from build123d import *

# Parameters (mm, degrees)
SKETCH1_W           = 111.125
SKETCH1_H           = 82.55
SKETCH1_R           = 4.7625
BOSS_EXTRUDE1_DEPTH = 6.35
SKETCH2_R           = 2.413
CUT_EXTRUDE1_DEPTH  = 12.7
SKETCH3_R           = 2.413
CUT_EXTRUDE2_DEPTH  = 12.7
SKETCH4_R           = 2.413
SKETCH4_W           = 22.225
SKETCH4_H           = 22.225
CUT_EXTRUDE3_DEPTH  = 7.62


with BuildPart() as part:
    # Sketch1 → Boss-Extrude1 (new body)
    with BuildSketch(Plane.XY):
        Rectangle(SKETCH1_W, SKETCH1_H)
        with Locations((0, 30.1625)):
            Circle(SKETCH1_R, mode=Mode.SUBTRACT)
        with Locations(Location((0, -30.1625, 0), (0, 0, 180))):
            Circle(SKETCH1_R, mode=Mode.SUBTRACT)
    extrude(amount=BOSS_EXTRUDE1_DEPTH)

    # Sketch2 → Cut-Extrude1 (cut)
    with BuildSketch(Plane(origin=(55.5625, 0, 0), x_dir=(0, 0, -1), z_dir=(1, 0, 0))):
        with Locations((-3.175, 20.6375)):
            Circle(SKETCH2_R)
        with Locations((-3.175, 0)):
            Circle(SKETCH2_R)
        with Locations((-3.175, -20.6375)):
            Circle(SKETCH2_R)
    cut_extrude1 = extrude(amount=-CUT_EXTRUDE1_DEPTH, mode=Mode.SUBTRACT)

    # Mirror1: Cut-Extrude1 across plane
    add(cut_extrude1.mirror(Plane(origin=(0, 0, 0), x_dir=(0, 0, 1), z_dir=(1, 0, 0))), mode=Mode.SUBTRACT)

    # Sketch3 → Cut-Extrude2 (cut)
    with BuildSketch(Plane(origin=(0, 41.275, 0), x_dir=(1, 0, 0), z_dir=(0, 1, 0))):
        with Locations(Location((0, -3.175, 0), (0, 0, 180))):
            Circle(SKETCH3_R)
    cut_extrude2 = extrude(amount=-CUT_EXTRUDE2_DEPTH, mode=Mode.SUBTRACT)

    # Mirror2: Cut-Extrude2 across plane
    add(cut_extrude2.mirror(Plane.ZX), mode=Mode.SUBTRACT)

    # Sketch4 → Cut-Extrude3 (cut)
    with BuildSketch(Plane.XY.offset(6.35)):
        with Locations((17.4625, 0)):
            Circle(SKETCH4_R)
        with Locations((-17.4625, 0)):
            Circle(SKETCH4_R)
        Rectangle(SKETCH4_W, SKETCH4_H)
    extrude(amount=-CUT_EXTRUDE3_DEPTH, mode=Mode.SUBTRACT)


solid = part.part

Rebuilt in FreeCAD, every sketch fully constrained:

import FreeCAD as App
import Part
import Sketcher
Q = App.Units.Quantity

doc = App.newDocument("Part")
params = doc.addObject("Spreadsheet::Sheet", "Params")
for row, (alias, value) in enumerate([
    ("sketch1_diameter", "0.375 in"),
    ("sketch1_height", "3.25 in"),
    ("sketch1_width", "4.375 in"),
    ("pad1_length", "0.25 in"),
    ("sketch2_diameter", "0.19 in"),
    ("pocket1_length", "0.5 in"),
    ("sketch3_diameter", "0.19 in"),
    ("pocket2_length", "0.5 in"),
    ("sketch4_diameter", "0.19 in"),
    ("sketch4_width", "0.875 in"),
    ("pocket3_length", "0.3 in"),
], start=1):
    params.set(f"A{row}", alias)
    params.set(f"B{row}", "=" + value)
    params.setAlias(f"B{row}", alias)

body = doc.addObject("PartDesign::Body", "Body")

sketch1 = doc.addObject("Sketcher::SketchObject", "Sketch")
body.addObject(sketch1)
sketch1.AttachmentSupport = (doc.XY_Plane, [""])
sketch1.MapMode = "FlatFace"
sketch1.addGeometry([
    Part.LineSegment(App.Vector(-55.5625, 41.275, 0), App.Vector(-55.5625, -41.275, 0)),
    Part.LineSegment(App.Vector(-55.5625, -41.275, 0), App.Vector(55.5625, -41.275, 0)),
    Part.LineSegment(App.Vector(55.5625, -41.275, 0), App.Vector(55.5625, 41.275, 0)),
    Part.LineSegment(App.Vector(55.5625, 41.275, 0), App.Vector(-55.5625, 41.275, 0)),
    Part.Circle(App.Vector(0, -30.1625, 0), App.Vector(0, 0, 1), 4.7625),
    Part.Circle(App.Vector(0, 30.1625, 0), App.Vector(0, 0, 1), 4.7625),
], False)
sketch1.addConstraint([
    Sketcher.Constraint("Coincident", 0, 2, 1, 1),
    Sketcher.Constraint("Coincident", 1, 2, 2, 1),
    Sketcher.Constraint("Coincident", 2, 2, 3, 1),
    Sketcher.Constraint("Coincident", 3, 2, 0, 1),
    Sketcher.Constraint("Vertical", 0),
    Sketcher.Constraint("Horizontal", 1),
    Sketcher.Constraint("Vertical", 2),
    Sketcher.Constraint("Horizontal", 3),
    Sketcher.Constraint("Equal", 4, 5),
    Sketcher.Constraint("Symmetric", 4, 3, 5, 3, -1, 1),
    Sketcher.Constraint("Symmetric", 0, 2, 2, 2, -1, 1),
    Sketcher.Constraint("PointOnObject", 4, 3, -2),
    Sketcher.Constraint("Diameter", 4, Q("0.375 in")),
    Sketcher.Constraint("DistanceY", 0, 2, 0, 1, Q("3.25 in")),
    Sketcher.Constraint("DistanceX", 1, 1, 1, 2, Q("4.375 in")),
    Sketcher.Constraint("DistanceY", 4, 3, -1, 1, Q("1.1875 in")),
])
sketch1.setExpression("Constraints[12]", "Params.sketch1_diameter")
sketch1.setExpression("Constraints[13]", "Params.sketch1_height")
sketch1.setExpression("Constraints[14]", "Params.sketch1_width")
pad1 = doc.addObject("PartDesign::Pad", "Pad")
body.addObject(pad1)
pad1.Profile = sketch1
pad1.setExpression("Length", "Params.pad1_length")

sketch2 = doc.addObject("Sketcher::SketchObject", "Sketch001")
body.addObject(sketch2)
sketch2.AttachmentSupport = (doc.YZ_Plane, [""])
sketch2.MapMode = "FlatFace"
sketch2.AttachmentOffset = App.Placement(App.Vector(0, 0, 2.1875 * 25.4), App.Rotation())
sketch2.addGeometry([
    Part.Circle(App.Vector(20.6375, 3.175, 0), App.Vector(0, 0, 1), 2.413),
    Part.Circle(App.Vector(0, 3.175, 0), App.Vector(0, 0, 1), 2.413),
    Part.Circle(App.Vector(-20.6375, 3.175, 0), App.Vector(0, 0, 1), 2.413),
], False)
sketch2.addConstraint([
    Sketcher.Constraint("Equal", 0, 1),
    Sketcher.Constraint("Equal", 1, 2),
    Sketcher.Constraint("Symmetric", 0, 3, 2, 3, -2),
    Sketcher.Constraint("PointOnObject", 1, 3, -2),
    Sketcher.Constraint("Horizontal", 0, 3, 1, 3),
    Sketcher.Constraint("Diameter", 0, Q("0.19 in")),
    Sketcher.Constraint("DistanceX", -1, 1, 0, 3, Q("0.8125 in")),
    Sketcher.Constraint("DistanceY", -1, 1, 0, 3, Q("0.125 in")),
])
sketch2.setExpression("Constraints[5]", "Params.sketch2_diameter")
pocket1 = doc.addObject("PartDesign::Pocket", "Pocket")
body.addObject(pocket1)
pocket1.Profile = sketch2
pocket1.setExpression("Length", "Params.pocket1_length")
doc.recompute()

mirrored = doc.addObject("PartDesign::Mirrored", "Mirrored")
body.addObject(mirrored)
mirrored.Originals = [pocket1]
mirrored.MirrorPlane = (doc.YZ_Plane, [""])
body.Tip = mirrored

sketch3 = doc.addObject("Sketcher::SketchObject", "Sketch002")
body.addObject(sketch3)
sketch3.AttachmentSupport = (doc.XZ_Plane, [""])
sketch3.MapMode = "FlatFace"
sketch3.AttachmentOffset = App.Placement(App.Vector(0, 0, -1.625 * 25.4), App.Rotation())
sketch3.addGeometry(Part.Circle(App.Vector(0, 3.175, 0), App.Vector(0, 0, 1), 2.413), False)
sketch3.addConstraint([
    Sketcher.Constraint("PointOnObject", 0, 3, -2),
    Sketcher.Constraint("Diameter", 0, Q("0.19 in")),
    Sketcher.Constraint("DistanceY", -1, 1, 0, 3, Q("0.125 in")),
])
sketch3.setExpression("Constraints[1]", "Params.sketch3_diameter")
pocket2 = doc.addObject("PartDesign::Pocket", "Pocket001")
body.addObject(pocket2)
pocket2.Profile = sketch3
pocket2.setExpression("Length", "Params.pocket2_length")
pocket2.Reversed = True
doc.recompute()

mirrored2 = doc.addObject("PartDesign::Mirrored", "Mirrored001")
body.addObject(mirrored2)
mirrored2.Originals = [pocket2]
mirrored2.MirrorPlane = (doc.XZ_Plane, [""])
body.Tip = mirrored2

sketch4 = doc.addObject("Sketcher::SketchObject", "Sketch003")
body.addObject(sketch4)
sketch4.AttachmentSupport = (doc.XY_Plane, [""])
sketch4.MapMode = "FlatFace"
sketch4.AttachmentOffset = App.Placement(App.Vector(0, 0, 0.25 * 25.4), App.Rotation())
sketch4.addGeometry([
    Part.Circle(App.Vector(17.4625, 0, 0), App.Vector(0, 0, 1), 2.413),
    Part.Circle(App.Vector(-17.4625, 0, 0), App.Vector(0, 0, 1), 2.413),
    Part.LineSegment(App.Vector(-11.1125, 11.1125, 0), App.Vector(-11.1125, -11.1125, 0)),
    Part.LineSegment(App.Vector(-11.1125, -11.1125, 0), App.Vector(11.1125, -11.1125, 0)),
    Part.LineSegment(App.Vector(11.1125, -11.1125, 0), App.Vector(11.1125, 11.1125, 0)),
    Part.LineSegment(App.Vector(11.1125, 11.1125, 0), App.Vector(-11.1125, 11.1125, 0)),
], False)
sketch4.addConstraint([
    Sketcher.Constraint("Coincident", 2, 2, 3, 1),
    Sketcher.Constraint("Coincident", 3, 2, 4, 1),
    Sketcher.Constraint("Coincident", 4, 2, 5, 1),
    Sketcher.Constraint("Coincident", 5, 2, 2, 1),
    Sketcher.Constraint("Vertical", 2),
    Sketcher.Constraint("Horizontal", 3),
    Sketcher.Constraint("Vertical", 4),
    Sketcher.Constraint("Horizontal", 5),
    Sketcher.Constraint("Equal", 0, 1),
    Sketcher.Constraint("Symmetric", 0, 3, 1, 3, -1, 1),
    Sketcher.Constraint("Symmetric", 2, 2, 4, 2, -1, 1),
    Sketcher.Constraint("PointOnObject", 0, 3, -1),
    Sketcher.Constraint("Equal", 5, 2),
    Sketcher.Constraint("Diameter", 0, Q("0.19 in")),
    Sketcher.Constraint("DistanceX", 3, 1, 3, 2, Q("0.875 in")),
    Sketcher.Constraint("DistanceX", 1, 3, 2, 2, Q("0.25 in")),
])
sketch4.setExpression("Constraints[13]", "Params.sketch4_diameter")
sketch4.setExpression("Constraints[14]", "Params.sketch4_width")
pocket3 = doc.addObject("PartDesign::Pocket", "Pocket002")
body.addObject(pocket3)
pocket3.Profile = sketch4
pocket3.setExpression("Length", "Params.pocket3_length")

doc.recompute()
